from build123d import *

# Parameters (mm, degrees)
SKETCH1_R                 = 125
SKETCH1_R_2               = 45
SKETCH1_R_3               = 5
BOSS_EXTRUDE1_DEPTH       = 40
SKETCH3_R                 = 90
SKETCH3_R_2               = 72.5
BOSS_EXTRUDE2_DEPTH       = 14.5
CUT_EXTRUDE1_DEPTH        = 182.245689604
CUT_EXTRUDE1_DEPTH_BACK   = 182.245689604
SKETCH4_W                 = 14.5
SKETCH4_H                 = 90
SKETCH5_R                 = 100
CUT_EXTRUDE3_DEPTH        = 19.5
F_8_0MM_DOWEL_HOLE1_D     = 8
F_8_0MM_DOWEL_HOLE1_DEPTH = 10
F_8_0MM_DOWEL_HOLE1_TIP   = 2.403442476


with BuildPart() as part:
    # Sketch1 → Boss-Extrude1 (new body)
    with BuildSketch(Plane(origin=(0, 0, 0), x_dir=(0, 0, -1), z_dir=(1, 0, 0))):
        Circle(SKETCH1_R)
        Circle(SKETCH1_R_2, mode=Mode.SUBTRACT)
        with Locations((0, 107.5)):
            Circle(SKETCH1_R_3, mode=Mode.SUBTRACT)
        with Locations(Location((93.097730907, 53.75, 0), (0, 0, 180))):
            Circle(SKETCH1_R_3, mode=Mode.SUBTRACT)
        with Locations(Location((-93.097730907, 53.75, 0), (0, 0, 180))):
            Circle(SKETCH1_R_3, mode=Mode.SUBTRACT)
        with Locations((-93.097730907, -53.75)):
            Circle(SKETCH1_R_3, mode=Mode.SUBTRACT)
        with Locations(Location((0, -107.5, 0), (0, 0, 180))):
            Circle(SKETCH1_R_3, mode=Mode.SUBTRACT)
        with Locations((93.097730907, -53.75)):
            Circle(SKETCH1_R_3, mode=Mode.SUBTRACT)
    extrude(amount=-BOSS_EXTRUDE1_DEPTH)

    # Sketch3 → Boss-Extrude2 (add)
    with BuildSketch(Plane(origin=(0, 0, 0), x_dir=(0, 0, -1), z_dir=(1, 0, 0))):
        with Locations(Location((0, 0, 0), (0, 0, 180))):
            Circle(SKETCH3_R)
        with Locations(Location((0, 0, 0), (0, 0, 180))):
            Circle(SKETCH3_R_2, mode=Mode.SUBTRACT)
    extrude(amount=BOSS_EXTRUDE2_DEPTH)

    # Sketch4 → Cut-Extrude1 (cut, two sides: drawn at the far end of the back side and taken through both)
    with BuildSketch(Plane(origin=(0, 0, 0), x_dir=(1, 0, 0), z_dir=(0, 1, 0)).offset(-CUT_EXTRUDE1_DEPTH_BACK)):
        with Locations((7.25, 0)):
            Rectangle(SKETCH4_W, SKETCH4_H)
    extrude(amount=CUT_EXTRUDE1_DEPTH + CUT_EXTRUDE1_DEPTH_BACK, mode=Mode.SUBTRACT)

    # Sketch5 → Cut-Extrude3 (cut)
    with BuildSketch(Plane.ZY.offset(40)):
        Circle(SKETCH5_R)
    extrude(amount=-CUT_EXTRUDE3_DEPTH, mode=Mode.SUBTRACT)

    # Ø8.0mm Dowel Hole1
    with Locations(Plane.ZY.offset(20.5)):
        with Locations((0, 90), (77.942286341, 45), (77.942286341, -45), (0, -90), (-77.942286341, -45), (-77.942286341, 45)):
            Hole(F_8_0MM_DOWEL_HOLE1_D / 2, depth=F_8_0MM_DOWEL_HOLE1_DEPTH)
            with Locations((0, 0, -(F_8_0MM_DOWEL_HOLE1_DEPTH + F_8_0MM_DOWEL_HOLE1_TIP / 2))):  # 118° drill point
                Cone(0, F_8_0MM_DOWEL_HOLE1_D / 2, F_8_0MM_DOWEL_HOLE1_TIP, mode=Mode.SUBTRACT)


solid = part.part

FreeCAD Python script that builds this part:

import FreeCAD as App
import Part
import Sketcher
Q = App.Units.Quantity


def add_polygon(sketch, points):
    """Adds a closed chain of lines whose ends are joined by coincident constraints."""
    first, n = sketch.GeometryCount, len(points)
    for a, b in zip(points, points[1:] + points[:1]):
        sketch.addGeometry(Part.LineSegment(App.Vector(*a, 0), App.Vector(*b, 0)), False)
    for i in range(n):
        sketch.addConstraint(Sketcher.Constraint("Coincident", first + i, 2, first + (i + 1) % n, 1))

doc = App.newDocument("Part")
params = doc.addObject("Spreadsheet::Sheet", "Params")
for row, (alias, value) in enumerate([
    ("sketch1_diameter", "250 mm"),
    ("sketch1_diameter2", "10 mm"),
    ("sketch1_diameter3", "90 mm"),
    ("pad1_length", "40 mm"),
    ("sketch2_diameter", "180 mm"),
    ("sketch2_diameter2", "145 mm"),
    ("pad2_length", "14.5 mm"),
    ("sketch3_height", "90 mm"),
    ("sketch3_width", "14.5 mm"),
    ("sketch4_diameter", "200 mm"),
    ("pocket2_length", "19.5 mm"),
    ("sketch5_diameter", "8 mm"),
    ("hole_diameter", "8 mm"),
    ("hole_depth", "10 mm"),
], start=1):
    params.set(f"A{row}", alias)
    params.set(f"B{row}", "=" + value)
    params.setAlias(f"B{row}", alias)

body = doc.addObject("PartDesign::Body", "Body")

# Sketch on YZ plane
sketch1 = body.newObject("Sketcher::SketchObject", "Sketch")
sketch1.AttachmentSupport = (doc.getObject("YZ_Plane"), [""])
sketch1.MapMode = "FlatFace"
sketch1.addGeometry([
    Part.Circle(App.Vector(0, 0, 0), App.Vector(0, 0, 1), 125),  # 0
    Part.Circle(App.Vector(-54, 93, 0), App.Vector(0, 0, 1), 5),  # 1
    Part.Circle(App.Vector(-108, 0, 0), App.Vector(0, 0, 1), 5),  # 2
    Part.Circle(App.Vector(-54, -93, 0), App.Vector(0, 0, 1), 5),  # 3
    Part.Circle(App.Vector(54, 93, 0), App.Vector(0, 0, 1), 5),  # 4
    Part.Circle(App.Vector(0, 0, 0), App.Vector(0, 0, 1), 45),  # 5
    Part.Circle(App.Vector(54, -93, 0), App.Vector(0, 0, 1), 5),  # 6
    Part.Circle(App.Vector(108, 0, 0), App.Vector(0, 0, 1), 5),  # 7
], False)
sketch1.addConstraint([
    Sketcher.Constraint("Coincident", 0, 3, -1, 1),
    Sketcher.Constraint("Coincident", 5, 3, -1, 1),
    Sketcher.Constraint("Equal", 1, 2),
    Sketcher.Constraint("Equal", 2, 3),
    Sketcher.Constraint("Equal", 3, 4),
    Sketcher.Constraint("Equal", 4, 6),
    Sketcher.Constraint("Equal", 6, 7),
    Sketcher.Constraint("Symmetric", 3, 3, 4, 3, -1, 1),
    Sketcher.Constraint("Symmetric", 1, 3, 6, 3, -1, 1),
    Sketcher.Constraint("Symmetric", 2, 3, 7, 3, -1, 1),
    Sketcher.Constraint("Symmetric", 1, 3, 4, 3, -2),
    Sketcher.Constraint("PointOnObject", 2, 3, -1),
    Sketcher.Constraint("Diameter", 0, Q("250 mm")),
    Sketcher.Constraint("Diameter", 1, Q("10 mm")),
    Sketcher.Constraint("Diameter", 5, Q("90 mm")),
    Sketcher.Constraint("DistanceX", 2, 3, -1, 1, Q("107.5 mm")),
    Sketcher.Constraint("DistanceX", 1, 3, 4, 3, Q("107.5 mm")),
    Sketcher.Constraint("DistanceY", -1, 1, 1, 3, Q("93.097731 mm")),
])
sketch1.setExpression("Constraints[12]", "Params.sketch1_diameter")
sketch1.setExpression("Constraints[13]", "Params.sketch1_diameter2")
sketch1.setExpression("Constraints[14]", "Params.sketch1_diameter3")
pad1 = body.newObject("PartDesign::Pad", "Pad")
pad1.Profile = sketch1
pad1.setExpression("Length", "Params.pad1_length")
pad1.Reversed = True

# Sketch on YZ plane
sketch2 = body.newObject("Sketcher::SketchObject", "Sketch001")
sketch2.AttachmentSupport = (doc.getObject("YZ_Plane"), [""])
sketch2.MapMode = "FlatFace"
sketch2.addGeometry([
    Part.Circle(App.Vector(0, 0, 0), App.Vector(0, 0, 1), 90),
    Part.Circle(App.Vector(0, 0, 0), App.Vector(0, 0, 1), 72),
], False)
sketch2.addConstraint([
    Sketcher.Constraint("Coincident", 0, 3, -1, 1),
    Sketcher.Constraint("Coincident", 1, 3, -1, 1),
    Sketcher.Constraint("Diameter", 0, Q("180 mm")),
    Sketcher.Constraint("Diameter", 1, Q("145 mm")),
])
sketch2.setExpression("Constraints[2]", "Params.sketch2_diameter")
sketch2.setExpression("Constraints[3]", "Params.sketch2_diameter2")
pad2 = body.newObject("PartDesign::Pad", "Pad001")
pad2.Profile = sketch2
pad2.setExpression("Length", "Params.pad2_length")

# Sketch on XZ plane
sketch3 = body.newObject("Sketcher::SketchObject", "Sketch002")
sketch3.AttachmentSupport = (doc.getObject("XZ_Plane"), [""])
sketch3.MapMode = "FlatFace"
add_polygon(sketch3, [(0, -45), (0, 45), (14, 45), (14, -45)])  # lines 0-3
sketch3.addConstraint([
    Sketcher.Constraint("Vertical", 0),
    Sketcher.Constraint("Horizontal", 1),
    Sketcher.Constraint("Vertical", 2),
    Sketcher.Constraint("Horizontal", 3),
    Sketcher.Constraint("Symmetric", 0, 2, 3, 2, -1, 1),
    Sketcher.Constraint("DistanceY", 0, 1, 0, 2, Q("90 mm")),
    Sketcher.Constraint("DistanceX", 1, 1, 1, 2, Q("14.5 mm")),
])
sketch3.setExpression("Constraints[9]", "Params.sketch3_height")
sketch3.setExpression("Constraints[10]", "Params.sketch3_width")
pocket1 = body.newObject("PartDesign::Pocket", "Pocket")
pocket1.Profile = sketch3
pocket1.Type = "ThroughAll"
pocket1.Midplane = True

# Sketch on YZ plane
sketch4 = body.newObject("Sketcher::SketchObject", "Sketch003")
sketch4.AttachmentSupport = (doc.getObject("YZ_Plane"), [""])
sketch4.MapMode = "FlatFace"
sketch4.AttachmentOffset = App.Placement(App.Vector(0, 0, -40), App.Rotation())
sketch4.addGeometry(Part.Circle(App.Vector(0, 0, 0), App.Vector(0, 0, 1), 100), False)
sketch4.addConstraint([
    Sketcher.Constraint("Coincident", 0, 3, -1, 1),
    Sketcher.Constraint("Diameter", 0, Q("200 mm")),
])
sketch4.setExpression("Constraints[1]", "Params.sketch4_diameter")
pocket2 = body.newObject("PartDesign::Pocket", "Pocket001")
pocket2.Profile = sketch4
pocket2.setExpression("Length", "Params.pocket2_length")
pocket2.Reversed = True

# Sketch on YZ plane
sketch5 = body.newObject("Sketcher::SketchObject", "Sketch004")
sketch5.AttachmentSupport = (doc.getObject("YZ_Plane"), [""])
sketch5.MapMode = "FlatFace"
sketch5.AttachmentOffset = App.Placement(App.Vector(0, 0, -20.5), App.Rotation())
sketch5.addGeometry([
    Part.Circle(App.Vector(90, 0, 0), App.Vector(0, 0, 1), 4),  # 0
    Part.Circle(App.Vector(45, 77.9, 0), App.Vector(0, 0, 1), 4),  # 1
    Part.Circle(App.Vector(-45, 77.9, 0), App.Vector(0, 0, 1), 4),  # 2
    Part.Circle(App.Vector(-90, 0, 0), App.Vector(0, 0, 1), 4),  # 3
    Part.Circle(App.Vector(-45, -77.9, 0), App.Vector(0, 0, 1), 4),  # 4
    Part.Circle(App.Vector(45, -77.9, 0), App.Vector(0, 0, 1), 4),  # 5
], False)
sketch5.addConstraint([
    Sketcher.Constraint("Equal", 0, 1),
    Sketcher.Constraint("Equal", 1, 2),
    Sketcher.Constraint("Equal", 2, 3),
    Sketcher.Constraint("Equal", 3, 4),
    Sketcher.Constraint("Equal", 4, 5),
    Sketcher.Constraint("Symmetric", 0, 3, 3, 3, -1, 1),
    Sketcher.Constraint("Symmetric", 1, 3, 4, 3, -1, 1),
    Sketcher.Constraint("Symmetric", 2, 3, 5, 3, -1, 1),
    Sketcher.Constraint("Symmetric", 1, 3, 2, 3, -2),
    Sketcher.Constraint("PointOnObject", 0, 3, -1),
    Sketcher.Constraint("Diameter", 0, Q("8 mm")),
    Sketcher.Constraint("DistanceX", -1, 1, 0, 3, Q("90 mm")),
    Sketcher.Constraint("DistanceX", -1, 1, 1, 3, Q("45 mm")),
    Sketcher.Constraint("DistanceY", -1, 1, 1, 3, Q("77.942286 mm")),
])
sketch5.setExpression("Constraints[10]", "Params.sketch5_diameter")
doc.recompute()
hole = body.newObject("PartDesign::Hole", "Hole")
hole.Profile = sketch5
hole.ThreadType = "None"
hole.setExpression("Diameter", "Params.hole_diameter")
hole.DepthType = "Dimension"
hole.setExpression("Depth", "Params.hole_depth")
hole.DrillPoint = "Angled"
hole.DrillPointAngle = 118
hole.Reversed = True

doc.recompute()
